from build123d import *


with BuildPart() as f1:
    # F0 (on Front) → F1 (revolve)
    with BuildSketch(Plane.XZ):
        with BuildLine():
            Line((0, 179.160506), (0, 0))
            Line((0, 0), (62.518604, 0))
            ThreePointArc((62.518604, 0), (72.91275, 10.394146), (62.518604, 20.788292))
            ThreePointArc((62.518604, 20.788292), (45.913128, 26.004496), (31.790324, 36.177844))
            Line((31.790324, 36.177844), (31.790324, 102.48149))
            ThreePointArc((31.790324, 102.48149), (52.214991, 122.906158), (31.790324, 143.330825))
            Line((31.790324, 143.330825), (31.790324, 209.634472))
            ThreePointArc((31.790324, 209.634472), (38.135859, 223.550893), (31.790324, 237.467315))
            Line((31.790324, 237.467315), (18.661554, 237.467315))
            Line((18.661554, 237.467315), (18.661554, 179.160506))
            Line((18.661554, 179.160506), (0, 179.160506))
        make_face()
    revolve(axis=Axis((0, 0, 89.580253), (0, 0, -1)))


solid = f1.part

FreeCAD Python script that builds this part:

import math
import FreeCAD as App
import Part
import Sketcher
Q = App.Units.Quantity

doc = App.newDocument("Part")
body = doc.addObject("PartDesign::Body", "Body")

# Sketch on XZ plane
sketch1 = doc.addObject("Sketcher::SketchObject", "Sketch")
body.addObject(sketch1)
sketch1.AttachmentSupport = (doc.XZ_Plane, [""])
sketch1.MapMode = "FlatFace"
sketch1.addGeometry([
    Part.LineSegment(App.Vector(0, 179, 0), App.Vector(0, 0, 0)),  # 0
    Part.LineSegment(App.Vector(0, 0, 0), App.Vector(63, 0, 0)),  # 1
    Part.ArcOfCircle(Part.Circle(App.Vector(63, 10, 0), App.Vector(0, 0, 1), 10), math.radians(-90), math.radians(90)),  # 2
    Part.ArcOfCircle(Part.Circle(App.Vector(70, 75, 0), App.Vector(0, 0, 1), 55), math.radians(-135), math.radians(-98)),  # 3
    Part.LineSegment(App.Vector(32, 36, 0), App.Vector(32, 102, 0)),  # 4
    Part.ArcOfCircle(Part.Circle(App.Vector(32, 123, 0), App.Vector(0, 0, 1), 20), math.radians(-90), math.radians(90)),  # 5
    Part.LineSegment(App.Vector(32, 143, 0), App.Vector(32, 210, 0)),  # 6
    Part.ArcOfCircle(Part.Circle(App.Vector(20, 224, 0), App.Vector(0, 0, 1), 18), math.radians(-49), math.radians(49)),  # 7
    Part.LineSegment(App.Vector(32, 237, 0), App.Vector(19, 237, 0)),  # 8
    Part.LineSegment(App.Vector(19, 237, 0), App.Vector(19, 179, 0)),  # 9
    Part.LineSegment(App.Vector(19, 179, 0), App.Vector(0, 179, 0)),  # 10
], False)
sketch1.addConstraint([
    Sketcher.Constraint("Coincident", 0, 2, 1, 1),
    Sketcher.Constraint("Tangent", 1, 2, 2, 1),
    Sketcher.Constraint("Coincident", 2, 2, 3, 2),
    Sketcher.Constraint("Coincident", 3, 1, 4, 1),
    Sketcher.Constraint("Coincident", 4, 2, 5, 1),
    Sketcher.Constraint("Coincident", 5, 2, 6, 1),
    Sketcher.Constraint("Coincident", 6, 2, 7, 1),
    Sketcher.Constraint("Coincident", 7, 2, 8, 1),
    Sketcher.Constraint("Coincident", 8, 2, 9, 1),
    Sketcher.Constraint("Coincident", 9, 2, 10, 1),
    Sketcher.Constraint("Coincident", 10, 2, 0, 1),
    Sketcher.Constraint("Vertical", 0),
    Sketcher.Constraint("Horizontal", 1),
    Sketcher.Constraint("Vertical", 4),
    Sketcher.Constraint("Vertical", 6),
    Sketcher.Constraint("Horizontal", 8),
    Sketcher.Constraint("Vertical", 9),
    Sketcher.Constraint("Horizontal", 10),
    Sketcher.Constraint("Coincident", 0, 2, -1, 1),
    Sketcher.Constraint("Vertical", 1, 2, 2, 2),
    Sketcher.Constraint("Vertical", 5, 3, 3, 1),
    Sketcher.Constraint("Vertical", 4, 2, 5, 2),
    Sketcher.Constraint("Vertical", 6, 2, 7, 2),
    Sketcher.Constraint("Equal", 4, 6),
    Sketcher.Constraint("Radius", 3, Q("54.643881 mm")),
    Sketcher.Constraint("Radius", 7, Q("18.432851 mm")),
    Sketcher.Constraint("Radius", 2, Q("10.394146 mm")),
    Sketcher.Constraint("Radius", 5, Q("20.424668 mm")),
    Sketcher.Constraint("DistanceX", 8, 2, 8, 1, Q("13.12877 mm")),
    Sketcher.Constraint("DistanceY", 9, 2, 9, 1, Q("58.306809 mm")),
    Sketcher.Constraint("DistanceX", 1, 1, 1, 2, Q("62.518604 mm")),
    Sketcher.Constraint("DistanceX", 10, 2, 10, 1, Q("18.661554 mm")),
    Sketcher.Constraint("DistanceY", 0, 2, 0, 1, Q("179.160506 mm")),
    Sketcher.Constraint("DistanceY", 4, 1, 4, 2, Q("66.303646 mm")),
    Sketcher.Constraint("DistanceX", -1, 1, 7, 3, Q("19.703008 mm")),
])
revolution = doc.addObject("PartDesign::Revolution", "Revolution")
body.addObject(revolution)
revolution.Profile = sketch1
revolution.ReferenceAxis = (sketch1, ["V_Axis"])
revolution.Angle = 360

doc.recompute()
